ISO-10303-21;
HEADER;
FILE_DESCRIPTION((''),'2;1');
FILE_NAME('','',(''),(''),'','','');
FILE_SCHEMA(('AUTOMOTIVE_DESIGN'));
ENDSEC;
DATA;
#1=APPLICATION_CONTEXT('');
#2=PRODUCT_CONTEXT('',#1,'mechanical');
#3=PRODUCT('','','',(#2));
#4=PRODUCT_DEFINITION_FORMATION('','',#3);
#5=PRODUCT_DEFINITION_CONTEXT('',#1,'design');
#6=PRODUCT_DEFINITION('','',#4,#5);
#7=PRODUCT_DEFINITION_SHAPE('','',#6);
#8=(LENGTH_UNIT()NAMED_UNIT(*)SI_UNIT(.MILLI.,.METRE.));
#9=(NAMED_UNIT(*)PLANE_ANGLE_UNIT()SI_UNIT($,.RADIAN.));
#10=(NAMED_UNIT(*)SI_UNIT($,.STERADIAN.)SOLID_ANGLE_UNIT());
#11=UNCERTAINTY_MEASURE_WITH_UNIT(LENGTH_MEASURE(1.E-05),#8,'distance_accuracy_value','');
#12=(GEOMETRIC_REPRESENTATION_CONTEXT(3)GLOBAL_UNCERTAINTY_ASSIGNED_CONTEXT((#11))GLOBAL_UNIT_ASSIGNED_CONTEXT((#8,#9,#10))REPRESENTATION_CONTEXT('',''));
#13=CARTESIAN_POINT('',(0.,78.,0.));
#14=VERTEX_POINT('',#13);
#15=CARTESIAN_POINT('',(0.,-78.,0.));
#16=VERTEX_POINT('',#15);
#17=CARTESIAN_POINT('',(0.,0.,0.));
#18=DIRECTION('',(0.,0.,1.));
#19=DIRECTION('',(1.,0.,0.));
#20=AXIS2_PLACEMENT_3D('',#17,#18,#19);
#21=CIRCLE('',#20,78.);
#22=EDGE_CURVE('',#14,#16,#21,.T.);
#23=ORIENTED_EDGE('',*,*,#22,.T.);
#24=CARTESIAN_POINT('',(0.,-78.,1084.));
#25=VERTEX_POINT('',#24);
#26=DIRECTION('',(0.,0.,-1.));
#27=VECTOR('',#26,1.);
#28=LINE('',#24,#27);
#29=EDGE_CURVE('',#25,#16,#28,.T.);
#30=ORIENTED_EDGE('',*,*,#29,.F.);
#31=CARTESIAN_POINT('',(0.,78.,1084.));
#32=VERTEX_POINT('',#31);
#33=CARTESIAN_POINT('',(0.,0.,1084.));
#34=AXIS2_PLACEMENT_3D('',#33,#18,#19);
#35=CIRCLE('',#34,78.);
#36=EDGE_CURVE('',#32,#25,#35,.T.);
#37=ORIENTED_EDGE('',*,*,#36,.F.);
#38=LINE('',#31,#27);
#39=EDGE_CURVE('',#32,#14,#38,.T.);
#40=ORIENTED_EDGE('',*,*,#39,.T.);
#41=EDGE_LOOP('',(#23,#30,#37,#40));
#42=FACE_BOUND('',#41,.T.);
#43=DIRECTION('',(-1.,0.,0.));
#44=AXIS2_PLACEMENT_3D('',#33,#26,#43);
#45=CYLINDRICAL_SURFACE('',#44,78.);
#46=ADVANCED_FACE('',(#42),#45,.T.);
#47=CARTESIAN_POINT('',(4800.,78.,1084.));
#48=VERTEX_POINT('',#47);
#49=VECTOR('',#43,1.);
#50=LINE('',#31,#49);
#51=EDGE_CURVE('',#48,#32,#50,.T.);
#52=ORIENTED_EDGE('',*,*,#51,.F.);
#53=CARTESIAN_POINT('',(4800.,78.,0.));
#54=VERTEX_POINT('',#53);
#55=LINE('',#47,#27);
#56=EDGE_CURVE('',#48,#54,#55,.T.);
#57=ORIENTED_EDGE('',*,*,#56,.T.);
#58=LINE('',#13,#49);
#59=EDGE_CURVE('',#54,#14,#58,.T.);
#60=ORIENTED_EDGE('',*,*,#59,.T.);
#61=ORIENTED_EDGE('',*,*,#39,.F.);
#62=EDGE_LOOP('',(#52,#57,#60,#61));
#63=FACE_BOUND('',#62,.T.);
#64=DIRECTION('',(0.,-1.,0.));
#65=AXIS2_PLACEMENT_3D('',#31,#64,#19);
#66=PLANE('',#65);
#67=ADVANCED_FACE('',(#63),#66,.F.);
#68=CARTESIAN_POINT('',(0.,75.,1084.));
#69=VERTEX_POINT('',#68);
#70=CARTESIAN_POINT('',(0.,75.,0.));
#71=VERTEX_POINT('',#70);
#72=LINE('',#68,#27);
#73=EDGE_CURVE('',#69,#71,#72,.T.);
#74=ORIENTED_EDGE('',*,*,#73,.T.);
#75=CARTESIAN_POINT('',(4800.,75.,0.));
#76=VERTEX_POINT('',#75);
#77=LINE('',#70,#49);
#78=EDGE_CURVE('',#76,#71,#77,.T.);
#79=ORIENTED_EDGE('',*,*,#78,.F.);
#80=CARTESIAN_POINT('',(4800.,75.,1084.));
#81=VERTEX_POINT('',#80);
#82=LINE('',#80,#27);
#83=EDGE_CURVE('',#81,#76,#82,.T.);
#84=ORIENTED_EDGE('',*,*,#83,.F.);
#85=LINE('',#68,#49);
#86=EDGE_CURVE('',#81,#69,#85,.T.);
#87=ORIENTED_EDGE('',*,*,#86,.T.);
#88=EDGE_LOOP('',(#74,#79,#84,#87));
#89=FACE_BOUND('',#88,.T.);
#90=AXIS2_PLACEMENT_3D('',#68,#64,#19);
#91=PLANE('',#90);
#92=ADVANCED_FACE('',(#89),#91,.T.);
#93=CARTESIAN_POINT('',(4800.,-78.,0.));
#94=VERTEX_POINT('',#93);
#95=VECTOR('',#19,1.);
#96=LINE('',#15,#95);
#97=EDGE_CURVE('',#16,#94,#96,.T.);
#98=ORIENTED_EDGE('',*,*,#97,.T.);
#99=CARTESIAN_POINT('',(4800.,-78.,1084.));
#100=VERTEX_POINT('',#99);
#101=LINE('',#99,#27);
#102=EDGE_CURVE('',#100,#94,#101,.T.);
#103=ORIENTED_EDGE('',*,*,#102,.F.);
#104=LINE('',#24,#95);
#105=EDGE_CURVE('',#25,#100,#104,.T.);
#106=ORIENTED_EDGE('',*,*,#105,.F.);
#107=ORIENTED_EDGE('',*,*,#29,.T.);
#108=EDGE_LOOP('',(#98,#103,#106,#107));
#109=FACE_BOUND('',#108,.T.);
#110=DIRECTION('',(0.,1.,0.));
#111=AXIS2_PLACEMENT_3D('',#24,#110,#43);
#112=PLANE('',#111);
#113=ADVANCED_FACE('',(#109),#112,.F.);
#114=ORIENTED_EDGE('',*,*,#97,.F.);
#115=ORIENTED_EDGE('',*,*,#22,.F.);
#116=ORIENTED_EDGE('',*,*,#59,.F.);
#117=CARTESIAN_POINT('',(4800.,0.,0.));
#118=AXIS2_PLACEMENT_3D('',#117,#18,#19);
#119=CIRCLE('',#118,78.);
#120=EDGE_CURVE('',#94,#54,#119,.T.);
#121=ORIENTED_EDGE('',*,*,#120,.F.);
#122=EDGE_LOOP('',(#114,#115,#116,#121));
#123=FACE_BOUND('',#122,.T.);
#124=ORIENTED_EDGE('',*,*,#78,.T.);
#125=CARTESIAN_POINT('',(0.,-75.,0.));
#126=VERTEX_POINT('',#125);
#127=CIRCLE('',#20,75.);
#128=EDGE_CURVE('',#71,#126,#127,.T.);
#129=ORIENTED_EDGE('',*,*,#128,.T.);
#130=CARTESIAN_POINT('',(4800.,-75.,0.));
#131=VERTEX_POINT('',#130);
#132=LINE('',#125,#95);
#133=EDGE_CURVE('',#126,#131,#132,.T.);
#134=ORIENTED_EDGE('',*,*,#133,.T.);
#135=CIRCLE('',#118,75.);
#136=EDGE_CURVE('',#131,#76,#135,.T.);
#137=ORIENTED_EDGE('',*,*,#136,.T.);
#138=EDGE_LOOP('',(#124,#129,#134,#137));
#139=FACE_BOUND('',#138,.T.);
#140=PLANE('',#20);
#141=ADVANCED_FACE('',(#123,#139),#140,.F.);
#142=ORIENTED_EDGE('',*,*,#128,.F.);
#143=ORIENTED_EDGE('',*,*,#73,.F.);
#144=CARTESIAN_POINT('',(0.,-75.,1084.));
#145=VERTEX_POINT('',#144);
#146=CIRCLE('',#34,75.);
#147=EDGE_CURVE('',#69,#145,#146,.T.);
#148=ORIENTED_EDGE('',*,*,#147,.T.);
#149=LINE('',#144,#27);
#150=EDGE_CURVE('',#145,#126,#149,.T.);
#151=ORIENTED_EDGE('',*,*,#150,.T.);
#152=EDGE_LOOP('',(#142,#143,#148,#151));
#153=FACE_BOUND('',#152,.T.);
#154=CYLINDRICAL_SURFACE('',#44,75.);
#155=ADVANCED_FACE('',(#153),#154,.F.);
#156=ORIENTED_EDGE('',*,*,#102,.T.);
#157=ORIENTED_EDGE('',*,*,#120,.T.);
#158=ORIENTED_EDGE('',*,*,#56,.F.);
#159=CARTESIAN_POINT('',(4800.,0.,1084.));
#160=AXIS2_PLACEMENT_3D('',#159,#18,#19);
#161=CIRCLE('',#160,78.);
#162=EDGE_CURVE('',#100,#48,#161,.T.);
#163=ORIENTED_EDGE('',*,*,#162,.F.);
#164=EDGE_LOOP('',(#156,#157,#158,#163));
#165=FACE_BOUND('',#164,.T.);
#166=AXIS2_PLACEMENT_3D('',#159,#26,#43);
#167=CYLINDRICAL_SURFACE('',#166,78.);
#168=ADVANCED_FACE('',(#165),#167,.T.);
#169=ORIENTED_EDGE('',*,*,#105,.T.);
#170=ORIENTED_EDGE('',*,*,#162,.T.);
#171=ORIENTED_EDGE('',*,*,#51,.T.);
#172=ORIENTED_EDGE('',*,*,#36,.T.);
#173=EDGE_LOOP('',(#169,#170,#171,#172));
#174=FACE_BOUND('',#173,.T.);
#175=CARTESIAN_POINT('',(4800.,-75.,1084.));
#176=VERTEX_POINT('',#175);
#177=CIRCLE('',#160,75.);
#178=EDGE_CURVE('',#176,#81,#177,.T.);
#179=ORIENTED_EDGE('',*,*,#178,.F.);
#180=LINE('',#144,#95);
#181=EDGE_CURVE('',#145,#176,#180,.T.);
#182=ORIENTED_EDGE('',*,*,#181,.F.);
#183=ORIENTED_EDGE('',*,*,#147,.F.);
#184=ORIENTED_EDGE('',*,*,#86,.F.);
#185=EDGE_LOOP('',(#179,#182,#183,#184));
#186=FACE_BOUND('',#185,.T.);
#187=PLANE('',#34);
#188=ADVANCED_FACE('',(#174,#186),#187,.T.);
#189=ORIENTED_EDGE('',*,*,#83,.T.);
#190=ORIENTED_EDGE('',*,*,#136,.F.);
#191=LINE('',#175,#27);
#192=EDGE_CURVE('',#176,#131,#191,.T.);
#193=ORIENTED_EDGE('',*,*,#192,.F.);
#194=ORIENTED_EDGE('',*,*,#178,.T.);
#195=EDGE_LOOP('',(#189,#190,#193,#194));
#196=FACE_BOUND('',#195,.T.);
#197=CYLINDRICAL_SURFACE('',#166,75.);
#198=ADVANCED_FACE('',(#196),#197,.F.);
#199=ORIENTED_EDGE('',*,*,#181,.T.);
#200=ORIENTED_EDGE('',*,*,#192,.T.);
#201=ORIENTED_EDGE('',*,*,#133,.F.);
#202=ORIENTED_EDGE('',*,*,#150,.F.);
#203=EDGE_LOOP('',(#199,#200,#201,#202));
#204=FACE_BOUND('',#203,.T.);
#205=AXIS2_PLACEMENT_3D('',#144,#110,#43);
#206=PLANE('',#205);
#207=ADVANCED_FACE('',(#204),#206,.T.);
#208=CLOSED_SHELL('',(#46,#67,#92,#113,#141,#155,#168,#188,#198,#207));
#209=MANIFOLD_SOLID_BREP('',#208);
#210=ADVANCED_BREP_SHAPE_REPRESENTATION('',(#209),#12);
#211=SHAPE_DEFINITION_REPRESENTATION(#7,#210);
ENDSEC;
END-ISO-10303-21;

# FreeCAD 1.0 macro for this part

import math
import FreeCAD as App
import Part
import Sketcher
from FreeCAD import Vector

doc = App.newDocument("Part")
body = doc.addObject("PartDesign::Body", "Body")

# Sketch on XY plane
sketch1 = doc.addObject("Sketcher::SketchObject", "Sketch")
body.addObject(sketch1)
sketch1.AttachmentSupport = (doc.XY_Plane, [""])
sketch1.MapMode = "FlatFace"
sketch1.addGeometry(Part.LineSegment(Vector(0, -78, 0), Vector(4800, -78, 0)), False)
sketch1.addGeometry(Part.ArcOfCircle(Part.Circle(Vector(4800, 0, 0), Vector(0, 0, 1), 78), math.radians(-90), math.radians(90)), False)
sketch1.addGeometry(Part.LineSegment(Vector(4800, 78, 0), Vector(0, 78, 0)), False)
sketch1.addGeometry(Part.ArcOfCircle(Part.Circle(Vector(0, 0, 0), Vector(0, 0, 1), 78), math.radians(90), math.radians(270)), False)
sketch1.addGeometry(Part.LineSegment(Vector(4800, -75, 0), Vector(0, -75, 0)), False)
sketch1.addGeometry(Part.ArcOfCircle(Part.Circle(Vector(0, 0, 0), Vector(0, 0, 1), 75), math.radians(90), math.radians(270)), False)
sketch1.addGeometry(Part.LineSegment(Vector(0, 75, 0), Vector(4800, 75, 0)), False)
sketch1.addGeometry(Part.ArcOfCircle(Part.Circle(Vector(4800, 0, 0), Vector(0, 0, 1), 75), math.radians(-90), math.radians(90)), False)
sketch1.addConstraint(Sketcher.Constraint("Tangent", 0, 2, 1, 1))
sketch1.addConstraint(Sketcher.Constraint("Tangent", 1, 2, 2, 1))
sketch1.addConstraint(Sketcher.Constraint("Tangent", 2, 2, 3, 1))
sketch1.addConstraint(Sketcher.Constraint("Tangent", 3, 2, 0, 1))
sketch1.addConstraint(Sketcher.Constraint("Tangent", 4, 2, 5, 2))
sketch1.addConstraint(Sketcher.Constraint("Tangent", 5, 1, 6, 1))
sketch1.addConstraint(Sketcher.Constraint("Tangent", 6, 2, 7, 2))
sketch1.addConstraint(Sketcher.Constraint("Tangent", 7, 1, 4, 1))
sketch1.addConstraint(Sketcher.Constraint("Horizontal", 0))
sketch1.addConstraint(Sketcher.Constraint("Horizontal", 2))
sketch1.addConstraint(Sketcher.Constraint("Horizontal", 4))
sketch1.addConstraint(Sketcher.Constraint("Horizontal", 6))
sketch1.addConstraint(Sketcher.Constraint("Coincident", 3, 3, -1, 1))
sketch1.addConstraint(Sketcher.Constraint("Coincident", 5, 3, -1, 1))
sketch1.addConstraint(Sketcher.Constraint("Vertical", 7, 3, 0, 2))
sketch1.addConstraint(Sketcher.Constraint("Radius", 1, 78.0))
sketch1.addConstraint(Sketcher.Constraint("Radius", 5, 75.0))
sketch1.addConstraint(Sketcher.Constraint("DistanceX", 0, 1, 0, 2, 4800.0))
pad1 = doc.addObject("PartDesign::Pad", "Pad")
body.addObject(pad1)
pad1.Profile = sketch1
pad1.Length = 1084

doc.recompute()
